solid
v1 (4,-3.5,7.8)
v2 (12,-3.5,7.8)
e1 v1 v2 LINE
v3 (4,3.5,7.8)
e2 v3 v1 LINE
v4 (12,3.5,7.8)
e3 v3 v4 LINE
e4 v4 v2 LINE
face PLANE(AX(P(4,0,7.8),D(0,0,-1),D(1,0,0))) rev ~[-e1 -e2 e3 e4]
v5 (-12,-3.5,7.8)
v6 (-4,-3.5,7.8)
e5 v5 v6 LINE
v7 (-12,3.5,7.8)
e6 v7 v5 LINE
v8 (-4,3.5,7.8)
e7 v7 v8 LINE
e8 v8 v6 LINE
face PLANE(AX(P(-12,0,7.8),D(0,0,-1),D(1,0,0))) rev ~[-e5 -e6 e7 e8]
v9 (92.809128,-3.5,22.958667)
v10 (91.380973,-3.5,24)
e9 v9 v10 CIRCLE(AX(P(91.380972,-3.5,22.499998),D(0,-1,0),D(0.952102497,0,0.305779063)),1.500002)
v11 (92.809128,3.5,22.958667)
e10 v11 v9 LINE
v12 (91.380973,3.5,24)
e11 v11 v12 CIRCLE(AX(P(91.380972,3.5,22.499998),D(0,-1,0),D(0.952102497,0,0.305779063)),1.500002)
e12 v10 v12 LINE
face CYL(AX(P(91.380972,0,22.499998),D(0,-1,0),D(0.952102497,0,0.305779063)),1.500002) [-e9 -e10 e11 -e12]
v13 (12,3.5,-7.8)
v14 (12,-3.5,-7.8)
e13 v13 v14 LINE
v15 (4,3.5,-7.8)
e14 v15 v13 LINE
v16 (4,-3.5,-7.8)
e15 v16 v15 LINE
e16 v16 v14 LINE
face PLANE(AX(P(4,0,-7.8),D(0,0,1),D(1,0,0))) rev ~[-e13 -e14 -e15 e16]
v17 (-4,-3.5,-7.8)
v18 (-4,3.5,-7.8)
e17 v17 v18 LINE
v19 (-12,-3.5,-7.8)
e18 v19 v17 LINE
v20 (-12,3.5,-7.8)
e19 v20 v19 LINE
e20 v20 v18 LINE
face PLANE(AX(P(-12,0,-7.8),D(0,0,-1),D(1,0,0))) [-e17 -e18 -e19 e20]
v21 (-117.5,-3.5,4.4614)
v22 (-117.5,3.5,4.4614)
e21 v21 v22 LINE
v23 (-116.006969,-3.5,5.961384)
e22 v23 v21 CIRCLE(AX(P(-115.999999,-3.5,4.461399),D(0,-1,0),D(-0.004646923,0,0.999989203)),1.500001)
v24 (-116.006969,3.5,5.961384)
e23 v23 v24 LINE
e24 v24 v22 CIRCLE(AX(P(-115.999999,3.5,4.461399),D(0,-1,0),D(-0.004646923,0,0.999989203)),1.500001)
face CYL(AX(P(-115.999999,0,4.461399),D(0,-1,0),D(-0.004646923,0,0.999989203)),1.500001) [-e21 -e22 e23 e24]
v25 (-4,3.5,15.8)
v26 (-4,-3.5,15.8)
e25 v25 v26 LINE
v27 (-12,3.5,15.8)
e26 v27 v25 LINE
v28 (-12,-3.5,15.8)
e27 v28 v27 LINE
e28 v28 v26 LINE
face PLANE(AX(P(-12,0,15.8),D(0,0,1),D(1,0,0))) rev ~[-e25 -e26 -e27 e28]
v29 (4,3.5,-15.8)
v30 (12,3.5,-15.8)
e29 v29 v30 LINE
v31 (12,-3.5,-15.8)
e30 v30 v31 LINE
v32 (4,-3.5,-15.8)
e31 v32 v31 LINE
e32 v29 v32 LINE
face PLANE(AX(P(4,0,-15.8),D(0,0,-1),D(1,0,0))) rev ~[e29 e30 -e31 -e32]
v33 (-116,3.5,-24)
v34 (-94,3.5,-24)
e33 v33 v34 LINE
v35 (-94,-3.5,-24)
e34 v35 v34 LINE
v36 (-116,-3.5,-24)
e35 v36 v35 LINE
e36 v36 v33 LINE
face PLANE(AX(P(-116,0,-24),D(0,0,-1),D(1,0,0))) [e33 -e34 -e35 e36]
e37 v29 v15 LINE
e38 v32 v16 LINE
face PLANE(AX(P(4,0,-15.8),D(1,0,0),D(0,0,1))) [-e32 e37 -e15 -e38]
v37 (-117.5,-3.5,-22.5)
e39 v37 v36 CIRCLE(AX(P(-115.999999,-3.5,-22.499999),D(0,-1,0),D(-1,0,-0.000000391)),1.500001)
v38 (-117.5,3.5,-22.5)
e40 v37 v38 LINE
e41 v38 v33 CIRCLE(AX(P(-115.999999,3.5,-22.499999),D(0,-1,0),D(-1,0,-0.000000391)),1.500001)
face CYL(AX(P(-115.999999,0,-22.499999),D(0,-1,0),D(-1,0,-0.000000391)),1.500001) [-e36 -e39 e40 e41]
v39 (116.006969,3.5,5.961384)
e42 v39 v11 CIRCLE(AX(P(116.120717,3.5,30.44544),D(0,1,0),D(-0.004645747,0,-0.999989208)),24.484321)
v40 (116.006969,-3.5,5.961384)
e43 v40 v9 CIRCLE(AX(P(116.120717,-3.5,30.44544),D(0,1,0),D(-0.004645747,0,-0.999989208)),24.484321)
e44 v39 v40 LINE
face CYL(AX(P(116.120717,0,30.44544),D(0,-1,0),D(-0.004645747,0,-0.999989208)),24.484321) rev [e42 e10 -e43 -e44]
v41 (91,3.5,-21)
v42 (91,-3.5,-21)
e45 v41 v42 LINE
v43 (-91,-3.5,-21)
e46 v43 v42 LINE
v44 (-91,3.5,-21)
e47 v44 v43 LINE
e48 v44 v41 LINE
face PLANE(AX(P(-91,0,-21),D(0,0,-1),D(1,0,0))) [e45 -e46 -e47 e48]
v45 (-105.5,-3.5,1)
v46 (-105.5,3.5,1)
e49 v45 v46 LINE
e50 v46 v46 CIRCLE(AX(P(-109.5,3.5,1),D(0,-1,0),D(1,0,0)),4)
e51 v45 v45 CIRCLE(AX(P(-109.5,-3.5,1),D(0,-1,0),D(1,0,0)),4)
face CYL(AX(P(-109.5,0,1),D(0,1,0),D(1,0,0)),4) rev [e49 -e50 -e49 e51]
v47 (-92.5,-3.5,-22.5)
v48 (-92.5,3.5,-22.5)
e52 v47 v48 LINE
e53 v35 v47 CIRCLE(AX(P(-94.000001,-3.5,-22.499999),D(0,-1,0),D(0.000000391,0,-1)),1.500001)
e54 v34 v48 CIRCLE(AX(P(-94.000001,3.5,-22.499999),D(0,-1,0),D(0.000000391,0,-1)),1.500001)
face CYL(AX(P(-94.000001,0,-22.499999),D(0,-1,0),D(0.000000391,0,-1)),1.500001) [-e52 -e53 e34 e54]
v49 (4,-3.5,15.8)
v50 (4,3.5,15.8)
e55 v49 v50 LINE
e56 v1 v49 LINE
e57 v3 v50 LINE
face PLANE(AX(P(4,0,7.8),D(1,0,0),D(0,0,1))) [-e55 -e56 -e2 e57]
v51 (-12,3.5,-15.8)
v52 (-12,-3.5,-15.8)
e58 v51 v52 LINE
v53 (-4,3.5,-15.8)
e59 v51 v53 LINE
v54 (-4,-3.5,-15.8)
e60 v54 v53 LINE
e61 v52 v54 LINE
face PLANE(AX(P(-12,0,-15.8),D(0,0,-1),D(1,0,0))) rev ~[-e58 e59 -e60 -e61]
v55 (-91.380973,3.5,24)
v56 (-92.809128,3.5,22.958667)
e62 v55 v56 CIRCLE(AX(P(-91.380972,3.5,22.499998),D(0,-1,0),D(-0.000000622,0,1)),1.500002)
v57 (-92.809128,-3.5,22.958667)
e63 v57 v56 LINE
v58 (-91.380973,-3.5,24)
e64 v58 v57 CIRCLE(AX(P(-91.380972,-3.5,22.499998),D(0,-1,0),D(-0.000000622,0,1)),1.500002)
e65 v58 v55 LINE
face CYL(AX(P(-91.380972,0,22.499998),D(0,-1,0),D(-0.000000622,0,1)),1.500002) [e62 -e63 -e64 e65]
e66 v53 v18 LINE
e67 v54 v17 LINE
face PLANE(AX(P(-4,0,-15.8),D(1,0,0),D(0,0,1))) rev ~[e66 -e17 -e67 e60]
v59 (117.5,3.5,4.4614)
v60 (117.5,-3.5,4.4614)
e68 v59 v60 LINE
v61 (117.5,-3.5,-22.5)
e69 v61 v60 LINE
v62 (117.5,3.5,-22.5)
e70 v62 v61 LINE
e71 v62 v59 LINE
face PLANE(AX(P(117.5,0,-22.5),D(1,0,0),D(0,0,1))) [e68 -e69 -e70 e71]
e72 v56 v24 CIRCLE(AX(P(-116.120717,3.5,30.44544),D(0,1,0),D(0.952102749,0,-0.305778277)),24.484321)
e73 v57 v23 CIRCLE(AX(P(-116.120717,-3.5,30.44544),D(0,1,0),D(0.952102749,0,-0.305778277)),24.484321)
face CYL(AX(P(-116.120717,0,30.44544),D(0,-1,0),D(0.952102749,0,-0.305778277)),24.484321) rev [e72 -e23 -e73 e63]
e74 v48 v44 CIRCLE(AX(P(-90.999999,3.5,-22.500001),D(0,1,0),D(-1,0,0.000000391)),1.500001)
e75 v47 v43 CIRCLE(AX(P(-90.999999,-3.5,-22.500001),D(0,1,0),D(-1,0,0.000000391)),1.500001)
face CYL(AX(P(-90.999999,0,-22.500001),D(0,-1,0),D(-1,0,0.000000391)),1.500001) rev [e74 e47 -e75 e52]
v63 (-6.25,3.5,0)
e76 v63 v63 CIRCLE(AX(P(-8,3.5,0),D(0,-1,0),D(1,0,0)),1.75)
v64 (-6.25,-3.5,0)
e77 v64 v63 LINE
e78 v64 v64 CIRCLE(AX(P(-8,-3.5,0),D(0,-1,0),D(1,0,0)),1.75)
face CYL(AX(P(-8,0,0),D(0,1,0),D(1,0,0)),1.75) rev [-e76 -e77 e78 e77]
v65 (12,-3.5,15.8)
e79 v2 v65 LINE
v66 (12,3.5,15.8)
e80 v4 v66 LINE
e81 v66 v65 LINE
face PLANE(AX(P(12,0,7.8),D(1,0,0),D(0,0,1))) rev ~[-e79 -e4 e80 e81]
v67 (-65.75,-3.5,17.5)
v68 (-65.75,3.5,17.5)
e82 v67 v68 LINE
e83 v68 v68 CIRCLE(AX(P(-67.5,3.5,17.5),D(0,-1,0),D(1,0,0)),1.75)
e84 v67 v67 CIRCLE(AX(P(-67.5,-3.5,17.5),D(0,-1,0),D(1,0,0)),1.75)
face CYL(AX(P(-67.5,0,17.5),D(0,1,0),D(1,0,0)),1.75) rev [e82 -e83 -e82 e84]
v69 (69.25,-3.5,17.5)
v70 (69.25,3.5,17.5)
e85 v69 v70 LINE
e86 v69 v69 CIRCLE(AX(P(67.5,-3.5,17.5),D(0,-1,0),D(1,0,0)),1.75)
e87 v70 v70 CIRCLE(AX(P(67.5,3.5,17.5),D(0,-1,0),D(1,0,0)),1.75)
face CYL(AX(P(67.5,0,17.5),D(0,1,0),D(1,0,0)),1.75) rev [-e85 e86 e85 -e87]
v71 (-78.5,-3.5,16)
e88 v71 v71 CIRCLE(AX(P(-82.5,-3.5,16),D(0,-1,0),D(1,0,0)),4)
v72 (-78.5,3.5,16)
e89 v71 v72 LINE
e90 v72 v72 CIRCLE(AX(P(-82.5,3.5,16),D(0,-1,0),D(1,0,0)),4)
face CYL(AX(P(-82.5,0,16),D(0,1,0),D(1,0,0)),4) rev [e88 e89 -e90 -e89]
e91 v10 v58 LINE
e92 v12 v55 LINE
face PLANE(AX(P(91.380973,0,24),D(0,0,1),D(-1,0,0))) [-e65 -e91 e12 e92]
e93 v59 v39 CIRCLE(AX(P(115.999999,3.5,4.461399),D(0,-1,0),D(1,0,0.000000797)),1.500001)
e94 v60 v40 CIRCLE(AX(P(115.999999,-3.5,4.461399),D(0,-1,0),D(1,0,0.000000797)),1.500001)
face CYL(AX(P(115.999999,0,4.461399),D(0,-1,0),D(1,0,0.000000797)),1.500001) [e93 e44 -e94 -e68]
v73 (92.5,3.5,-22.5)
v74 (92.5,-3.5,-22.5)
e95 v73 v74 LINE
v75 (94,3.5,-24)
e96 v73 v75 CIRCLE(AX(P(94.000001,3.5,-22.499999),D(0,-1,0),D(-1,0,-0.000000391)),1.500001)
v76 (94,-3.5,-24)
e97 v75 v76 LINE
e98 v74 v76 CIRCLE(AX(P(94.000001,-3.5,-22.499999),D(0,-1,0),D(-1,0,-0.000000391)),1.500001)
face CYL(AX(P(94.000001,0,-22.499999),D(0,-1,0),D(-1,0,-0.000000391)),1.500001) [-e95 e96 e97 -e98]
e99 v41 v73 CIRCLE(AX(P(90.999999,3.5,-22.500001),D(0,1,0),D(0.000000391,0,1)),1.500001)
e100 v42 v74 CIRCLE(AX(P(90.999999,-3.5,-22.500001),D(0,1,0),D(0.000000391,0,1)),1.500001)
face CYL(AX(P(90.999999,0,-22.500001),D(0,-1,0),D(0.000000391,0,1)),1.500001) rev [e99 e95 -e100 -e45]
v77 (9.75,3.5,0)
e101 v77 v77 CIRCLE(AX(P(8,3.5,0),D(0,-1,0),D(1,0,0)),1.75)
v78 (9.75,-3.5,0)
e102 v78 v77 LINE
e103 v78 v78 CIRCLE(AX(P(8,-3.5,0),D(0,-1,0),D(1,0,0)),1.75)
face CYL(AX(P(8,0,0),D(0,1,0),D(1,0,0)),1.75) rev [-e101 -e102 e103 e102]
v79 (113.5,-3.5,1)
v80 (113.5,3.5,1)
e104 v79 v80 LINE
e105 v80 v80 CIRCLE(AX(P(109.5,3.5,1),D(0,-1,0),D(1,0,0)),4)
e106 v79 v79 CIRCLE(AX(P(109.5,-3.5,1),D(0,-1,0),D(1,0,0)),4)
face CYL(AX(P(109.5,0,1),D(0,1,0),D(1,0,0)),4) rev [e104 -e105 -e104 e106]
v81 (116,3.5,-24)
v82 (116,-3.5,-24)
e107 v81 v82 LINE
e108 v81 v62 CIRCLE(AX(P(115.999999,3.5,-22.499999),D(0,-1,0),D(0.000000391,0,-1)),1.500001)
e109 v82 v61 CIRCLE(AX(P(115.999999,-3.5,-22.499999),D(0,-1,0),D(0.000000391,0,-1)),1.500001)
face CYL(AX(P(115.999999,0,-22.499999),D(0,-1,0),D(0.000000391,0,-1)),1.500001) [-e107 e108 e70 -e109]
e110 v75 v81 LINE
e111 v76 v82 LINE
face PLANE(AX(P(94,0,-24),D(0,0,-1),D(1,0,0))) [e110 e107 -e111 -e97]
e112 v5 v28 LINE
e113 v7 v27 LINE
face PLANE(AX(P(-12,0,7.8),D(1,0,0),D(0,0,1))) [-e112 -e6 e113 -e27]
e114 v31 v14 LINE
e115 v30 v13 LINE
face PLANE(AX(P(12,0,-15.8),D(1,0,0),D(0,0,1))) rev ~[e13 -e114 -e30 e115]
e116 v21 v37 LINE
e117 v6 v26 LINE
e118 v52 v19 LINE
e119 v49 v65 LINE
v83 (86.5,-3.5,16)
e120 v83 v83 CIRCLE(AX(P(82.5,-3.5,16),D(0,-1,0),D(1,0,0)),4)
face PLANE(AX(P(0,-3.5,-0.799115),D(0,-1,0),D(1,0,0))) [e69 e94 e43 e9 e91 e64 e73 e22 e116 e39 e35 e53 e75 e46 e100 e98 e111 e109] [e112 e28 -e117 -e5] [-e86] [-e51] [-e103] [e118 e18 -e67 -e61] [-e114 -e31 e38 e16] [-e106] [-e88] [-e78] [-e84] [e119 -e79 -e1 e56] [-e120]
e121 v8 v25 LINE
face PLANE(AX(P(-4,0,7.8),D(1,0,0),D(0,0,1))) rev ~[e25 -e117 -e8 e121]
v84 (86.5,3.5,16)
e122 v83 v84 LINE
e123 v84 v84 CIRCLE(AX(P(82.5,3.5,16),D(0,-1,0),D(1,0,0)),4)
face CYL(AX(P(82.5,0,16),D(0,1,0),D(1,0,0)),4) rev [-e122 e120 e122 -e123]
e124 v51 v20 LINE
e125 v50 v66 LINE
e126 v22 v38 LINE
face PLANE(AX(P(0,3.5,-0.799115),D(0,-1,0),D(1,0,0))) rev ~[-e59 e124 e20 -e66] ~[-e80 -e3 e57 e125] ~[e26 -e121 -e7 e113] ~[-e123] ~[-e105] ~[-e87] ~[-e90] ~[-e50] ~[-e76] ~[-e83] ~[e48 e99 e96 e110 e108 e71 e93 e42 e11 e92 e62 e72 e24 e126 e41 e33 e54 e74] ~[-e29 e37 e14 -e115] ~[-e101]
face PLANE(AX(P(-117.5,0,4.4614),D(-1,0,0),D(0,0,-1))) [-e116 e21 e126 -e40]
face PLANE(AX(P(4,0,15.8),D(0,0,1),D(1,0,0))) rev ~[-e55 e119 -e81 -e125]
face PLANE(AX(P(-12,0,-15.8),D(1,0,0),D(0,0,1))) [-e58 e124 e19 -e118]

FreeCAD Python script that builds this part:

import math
import FreeCAD as App
import Part
import Sketcher
Q = App.Units.Quantity


def add_polygon(sketch, points):
    """Adds a closed chain of lines whose ends are joined by coincident constraints."""
    first, n = sketch.GeometryCount, len(points)
    for a, b in zip(points, points[1:] + points[:1]):
        sketch.addGeometry(Part.LineSegment(App.Vector(*a, 0), App.Vector(*b, 0)), False)
    for i in range(n):
        sketch.addConstraint(Sketcher.Constraint("Coincident", first + i, 2, first + (i + 1) % n, 1))

doc = App.newDocument("Part")
body = doc.addObject("PartDesign::Body", "Body")

# Sketch on XZ plane
sketch1 = doc.addObject("Sketcher::SketchObject", "Sketch")
body.addObject(sketch1)
sketch1.AttachmentSupport = (doc.XZ_Plane, [""])
sketch1.MapMode = "FlatFace"
sketch1.addGeometry(Part.ArcOfCircle(Part.Circle(App.Vector(-91, -22.5, 0), App.Vector(0, 0, 1), 1.5), math.radians(90), math.radians(180)), False)  # 0
sketch1.addGeometry(Part.LineSegment(App.Vector(-91, -21, 0), App.Vector(91, -21, 0)), False)  # 1
sketch1.addGeometry(Part.ArcOfCircle(Part.Circle(App.Vector(91, -22.5, 0), App.Vector(0, 0, 1), 1.5), math.radians(0), math.radians(90)), False)  # 2
sketch1.addGeometry(Part.ArcOfCircle(Part.Circle(App.Vector(94, -22.5, 0), App.Vector(0, 0, 1), 1.5), math.radians(-180), math.radians(-90)), False)  # 3
sketch1.addGeometry(Part.LineSegment(App.Vector(94, -24, 0), App.Vector(116, -24, 0)), False)  # 4
sketch1.addGeometry(Part.ArcOfCircle(Part.Circle(App.Vector(116, -22.5, 0), App.Vector(0, 0, 1), 1.5), math.radians(-90), math.radians(0)), False)  # 5
sketch1.addGeometry(Part.LineSegment(App.Vector(117.5, -22.5, 0), App.Vector(117.5, 4.5, 0)), False)  # 6
sketch1.addGeometry(Part.ArcOfCircle(Part.Circle(App.Vector(116, 4.5, 0), App.Vector(0, 0, 1), 1.5), math.radians(0), math.radians(90)), False)  # 7
sketch1.addGeometry(Part.ArcOfCircle(Part.Circle(App.Vector(116.1, 30.4, 0), App.Vector(0, 0, 1), 24.5), math.radians(-162), math.radians(-90)), False)  # 8
sketch1.addGeometry(Part.ArcOfCircle(Part.Circle(App.Vector(91.4, 22.5, 0), App.Vector(0, 0, 1), 1.5), math.radians(18), math.radians(90)), False)  # 9
sketch1.addGeometry(Part.LineSegment(App.Vector(91.4, 24, 0), App.Vector(-91.4, 24, 0)), False)  # 10
sketch1.addGeometry(Part.ArcOfCircle(Part.Circle(App.Vector(-91.4, 22.5, 0), App.Vector(0, 0, 1), 1.5), math.radians(90), math.radians(162)), False)  # 11
sketch1.addGeometry(Part.ArcOfCircle(Part.Circle(App.Vector(-116.1, 30.4, 0), App.Vector(0, 0, 1), 24.5), math.radians(-90), math.radians(-18)), False)  # 12
sketch1.addGeometry(Part.ArcOfCircle(Part.Circle(App.Vector(-116, 4.5, 0), App.Vector(0, 0, 1), 1.5), math.radians(90), math.radians(180)), False)  # 13
sketch1.addGeometry(Part.LineSegment(App.Vector(-117.5, 4.5, 0), App.Vector(-117.5, -22.5, 0)), False)  # 14
sketch1.addGeometry(Part.ArcOfCircle(Part.Circle(App.Vector(-116, -22.5, 0), App.Vector(0, 0, 1), 1.5), math.radians(-180), math.radians(-90)), False)  # 15
sketch1.addGeometry(Part.LineSegment(App.Vector(-116, -24, 0), App.Vector(-94, -24, 0)), False)  # 16
sketch1.addGeometry(Part.ArcOfCircle(Part.Circle(App.Vector(-94, -22.5, 0), App.Vector(0, 0, 1), 1.5), math.radians(-90), math.radians(0)), False)  # 17
add_polygon(sketch1, [(-4, -15.8), (-12, -15.8), (-12, -7.8), (-4, -7.8)])  # lines 18-21
sketch1.addGeometry(Part.Circle(App.Vector(-109.5, 1, 0), App.Vector(0, 0, 1), 4), False)  # 22
sketch1.addGeometry(Part.Circle(App.Vector(-8, 0, 0), App.Vector(0, 0, 1), 1.8), False)  # 23
add_polygon(sketch1, [(12, -15.8), (4, -15.8), (4, -7.8), (12, -7.8)])  # lines 24-27
sketch1.addGeometry(Part.Circle(App.Vector(8, 0, 0), App.Vector(0, 0, 1), 1.8), False)  # 28
sketch1.addGeometry(Part.Circle(App.Vector(109.5, 1, 0), App.Vector(0, 0, 1), 4), False)  # 29
sketch1.addGeometry(Part.Circle(App.Vector(-82.5, 16, 0), App.Vector(0, 0, 1), 4), False)  # 30
sketch1.addGeometry(Part.Circle(App.Vector(-67.5, 17.5, 0), App.Vector(0, 0, 1), 1.8), False)  # 31
add_polygon(sketch1, [(-4, 7.8), (-12, 7.8), (-12, 15.8), (-4, 15.8)])  # lines 32-35
add_polygon(sketch1, [(12, 7.8), (4, 7.8), (4, 15.8), (12, 15.8)])  # lines 36-39
sketch1.addGeometry(Part.Circle(App.Vector(67.5, 17.5, 0), App.Vector(0, 0, 1), 1.8), False)  # 40
sketch1.addGeometry(Part.Circle(App.Vector(82.5, 16, 0), App.Vector(0, 0, 1), 4), False)  # 41
sketch1.addConstraint([
    Sketcher.Constraint("Tangent", 0, 1, 1, 1),
    Sketcher.Constraint("Tangent", 1, 2, 2, 2),
    Sketcher.Constraint("Tangent", 2, 1, 3, 1),
    Sketcher.Constraint("Tangent", 3, 2, 4, 1),
    Sketcher.Constraint("Tangent", 4, 2, 5, 1),
    Sketcher.Constraint("Tangent", 5, 2, 6, 1),
    Sketcher.Constraint("Tangent", 6, 2, 7, 1),
    Sketcher.Constraint("Tangent", 7, 2, 8, 2),
    Sketcher.Constraint("Tangent", 8, 1, 9, 1),
    Sketcher.Constraint("Tangent", 9, 2, 10, 1),
    Sketcher.Constraint("Tangent", 10, 2, 11, 1),
    Sketcher.Constraint("Tangent", 11, 2, 12, 2),
    Sketcher.Constraint("Tangent", 12, 1, 13, 1),
    Sketcher.Constraint("Tangent", 13, 2, 14, 1),
    Sketcher.Constraint("Tangent", 14, 2, 15, 1),
    Sketcher.Constraint("Tangent", 15, 2, 16, 1),
    Sketcher.Constraint("Tangent", 16, 2, 17, 1),
    Sketcher.Constraint("Tangent", 17, 2, 0, 2),
    Sketcher.Constraint("Horizontal", 1),
    Sketcher.Constraint("Horizontal", 4),
    Sketcher.Constraint("Vertical", 6),
    Sketcher.Constraint("Horizontal", 10),
    Sketcher.Constraint("Vertical", 14),
    Sketcher.Constraint("Horizontal", 16),
    Sketcher.Constraint("Horizontal", 18),
    Sketcher.Constraint("Vertical", 19),
    Sketcher.Constraint("Horizontal", 20),
    Sketcher.Constraint("Vertical", 21),
    Sketcher.Constraint("Horizontal", 24),
    Sketcher.Constraint("Vertical", 25),
    Sketcher.Constraint("Horizontal", 26),
    Sketcher.Constraint("Vertical", 27),
    Sketcher.Constraint("Horizontal", 32),
    Sketcher.Constraint("Vertical", 33),
    Sketcher.Constraint("Horizontal", 34),
    Sketcher.Constraint("Vertical", 35),
    Sketcher.Constraint("Horizontal", 36),
    Sketcher.Constraint("Vertical", 37),
    Sketcher.Constraint("Horizontal", 38),
    Sketcher.Constraint("Vertical", 39),
    Sketcher.Constraint("Equal", 0, 2),
    Sketcher.Constraint("Equal", 2, 3),
    Sketcher.Constraint("Equal", 3, 5),
    Sketcher.Constraint("Equal", 5, 7),
    Sketcher.Constraint("Equal", 7, 9),
    Sketcher.Constraint("Equal", 9, 11),
    Sketcher.Constraint("Equal", 8, 12),
    Sketcher.Constraint("Equal", 11, 13),
    Sketcher.Constraint("Equal", 13, 15),
    Sketcher.Constraint("Equal", 15, 17),
    Sketcher.Constraint("Equal", 23, 28),
    Sketcher.Constraint("Equal", 22, 29),
    Sketcher.Constraint("Equal", 29, 30),
    Sketcher.Constraint("Equal", 28, 31),
    Sketcher.Constraint("Equal", 31, 40),
    Sketcher.Constraint("Equal", 30, 41),
    Sketcher.Constraint("Symmetric", 23, 3, 28, 3, -1, 1),
    Sketcher.Constraint("Symmetric", 26, 2, 32, 2, -1, 1),
    Sketcher.Constraint("Symmetric", 24, 2, 34, 2, -1, 1),
    Sketcher.Constraint("Symmetric", 20, 2, 36, 2, -1, 1),
    Sketcher.Constraint("Symmetric", 18, 2, 38, 2, -1, 1),
    Sketcher.Constraint("Symmetric", 8, 3, 12, 3, -2),
    Sketcher.Constraint("Symmetric", 5, 3, 15, 3, -2),
    Sketcher.Constraint("Symmetric", 22, 3, 29, 3, -2),
    Sketcher.Constraint("Symmetric", 31, 3, 40, 3, -2),
    Sketcher.Constraint("Symmetric", 30, 3, 41, 3, -2),
    Sketcher.Constraint("Symmetric", 21, 2, 24, 2, -2),
    Sketcher.Constraint("Symmetric", 19, 2, 26, 2, -2),
    Sketcher.Constraint("PointOnObject", 23, 3, -1),
    Sketcher.Constraint("Horizontal", 2, 3, 3, 3),
    Sketcher.Constraint("Equal", 4, 16),
    Sketcher.Constraint("Equal", 38, 19),
    Sketcher.Constraint("Diameter", 22, Q("8 mm")),
    Sketcher.Constraint("Diameter", 23, Q("3.5 mm")),
    Sketcher.Constraint("Radius", 0, Q("1.500001 mm")),
    Sketcher.Constraint("DistanceX", 1, 1, 1, 2, Q("182 mm")),
    Sketcher.Constraint("DistanceX", 4, 1, 4, 2, Q("22 mm")),
    Sketcher.Constraint("DistanceX", 18, 2, 18, 1, Q("8 mm")),
    Sketcher.Constraint("DistanceY", -1, 1, 22, 3, Q("1 mm")),
    Sketcher.Constraint("DistanceX", 23, 3, -1, 1, Q("8 mm")),
    Sketcher.Constraint("DistanceY", -1, 1, 30, 3, Q("16 mm")),
    Sketcher.Constraint("DistanceY", 0, 1, -1, 1, Q("21 mm")),
    Sketcher.Constraint("DistanceY", -1, 1, 9, 2, Q("24 mm")),
    Sketcher.Constraint("DistanceX", 18, 2, -1, 1, Q("12 mm")),
    Sketcher.Constraint("DistanceX", 22, 3, 30, 3, Q("27 mm")),
    Sketcher.Constraint("DistanceX", 30, 3, 31, 3, Q("15 mm")),
    Sketcher.Constraint("DistanceY", 0, 3, 31, 3, Q("40.000001 mm")),
    Sketcher.Constraint("DistanceX", 2, 1, 29, 3, Q("17 mm")),
    Sketcher.Constraint("DistanceY", 18, 2, -1, 1, Q("15.8 mm")),
    Sketcher.Constraint("Radius", 8, Q("24.484321 mm")),
    Sketcher.Constraint("DistanceY", 6, 1, 6, 2, Q("26.9614 mm")),
    Sketcher.Constraint("DistanceX", 10, 2, 10, 1, Q("182.761946 mm")),
])
pad1 = doc.addObject("PartDesign::Pad", "Pad")
body.addObject(pad1)
pad1.Profile = sketch1
pad1.Length = 7
pad1.Midplane = True

doc.recompute()
